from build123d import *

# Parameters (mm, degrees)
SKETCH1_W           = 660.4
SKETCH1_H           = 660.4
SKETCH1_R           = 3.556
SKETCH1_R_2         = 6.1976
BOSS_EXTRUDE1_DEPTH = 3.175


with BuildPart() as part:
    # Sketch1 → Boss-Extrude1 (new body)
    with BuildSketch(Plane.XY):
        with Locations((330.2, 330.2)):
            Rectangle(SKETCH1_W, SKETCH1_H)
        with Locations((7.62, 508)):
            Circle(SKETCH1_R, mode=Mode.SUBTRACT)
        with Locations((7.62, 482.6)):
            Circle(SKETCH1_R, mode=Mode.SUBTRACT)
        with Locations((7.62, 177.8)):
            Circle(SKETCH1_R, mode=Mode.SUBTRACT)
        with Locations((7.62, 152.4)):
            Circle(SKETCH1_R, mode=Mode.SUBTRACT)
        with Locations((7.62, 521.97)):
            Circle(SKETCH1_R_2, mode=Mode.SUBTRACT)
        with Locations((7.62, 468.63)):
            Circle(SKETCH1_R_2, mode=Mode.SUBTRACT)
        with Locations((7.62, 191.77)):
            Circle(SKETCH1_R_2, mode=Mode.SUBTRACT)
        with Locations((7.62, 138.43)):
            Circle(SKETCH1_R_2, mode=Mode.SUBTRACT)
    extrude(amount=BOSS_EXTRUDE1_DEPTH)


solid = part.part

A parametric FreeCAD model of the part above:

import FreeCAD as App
import Part
import Sketcher
from FreeCAD import Vector
Q = App.Units.Quantity


def add_polygon(sketch, points):
    """Adds a closed chain of lines whose ends are joined by coincident constraints."""
    first, n = sketch.GeometryCount, len(points)
    for a, b in zip(points, points[1:] + points[:1]):
        sketch.addGeometry(Part.LineSegment(App.Vector(*a, 0), App.Vector(*b, 0)), False)
    for i in range(n):
        sketch.addConstraint(Sketcher.Constraint("Coincident", first + i, 2, first + (i + 1) % n, 1))

doc = App.newDocument("Part")
body = doc.addObject("PartDesign::Body", "Body")

sketch1 = body.newObject("Sketcher::SketchObject", "Sketch")
sketch1.AttachmentSupport = (doc.getObject("XY_Plane"), [""])
sketch1.MapMode = "FlatFace"
add_polygon(sketch1, [(0, 660.4), (0, 0), (660.4, 0), (660.4, 660.4)])
sketch1.addGeometry(Part.Circle(Vector(7.6, 138.4, 0), Vector(0, 0, 1), 6.2), False)
sketch1.addGeometry(Part.Circle(Vector(7.6, 152.4, 0), Vector(0, 0, 1), 3.6), False)
sketch1.addGeometry(Part.Circle(Vector(7.6, 177.8, 0), Vector(0, 0, 1), 3.6), False)
sketch1.addGeometry(Part.Circle(Vector(7.6, 191.8, 0), Vector(0, 0, 1), 6.2), False)
sketch1.addGeometry(Part.Circle(Vector(7.6, 468.6, 0), Vector(0, 0, 1), 6.2), False)
sketch1.addGeometry(Part.Circle(Vector(7.6, 482.6, 0), Vector(0, 0, 1), 3.6), False)
sketch1.addGeometry(Part.Circle(Vector(7.6, 508, 0), Vector(0, 0, 1), 3.6), False)
sketch1.addGeometry(Part.Circle(Vector(7.6, 522, 0), Vector(0, 0, 1), 6.2), False)
sketch1.addConstraint([
    Sketcher.Constraint("Vertical", 0),
    Sketcher.Constraint("Horizontal", 1),
    Sketcher.Constraint("Vertical", 2),
    Sketcher.Constraint("Horizontal", 3),
    Sketcher.Constraint("Coincident", 0, 2, -1, 1),
    Sketcher.Constraint("Equal", 5, 6),
    Sketcher.Constraint("Equal", 4, 7),
    Sketcher.Constraint("Equal", 7, 8),
    Sketcher.Constraint("Equal", 6, 9),
    Sketcher.Constraint("Equal", 9, 10),
    Sketcher.Constraint("Equal", 8, 11),
    Sketcher.Constraint("Vertical", 4, 3, 5, 3),
    Sketcher.Constraint("Vertical", 5, 3, 6, 3),
    Sketcher.Constraint("Vertical", 6, 3, 7, 3),
    Sketcher.Constraint("Vertical", 7, 3, 8, 3),
    Sketcher.Constraint("Vertical", 8, 3, 9, 3),
    Sketcher.Constraint("Vertical", 9, 3, 10, 3),
    Sketcher.Constraint("Vertical", 10, 3, 11, 3),
    Sketcher.Constraint("Equal", 3, 0),
    Sketcher.Constraint("Diameter", 5, Q("0.28 in")),
    Sketcher.Constraint("DistanceX", 1, 1, 1, 2, Q("26 in")),
    Sketcher.Constraint("Diameter", 4, Q("0.488 in")),
    Sketcher.Constraint("DistanceY", -1, 1, 5, 3, Q("6 in")),
    Sketcher.Constraint("DistanceY", -1, 1, 6, 3, Q("7 in")),
    Sketcher.Constraint("DistanceY", -1, 1, 9, 3, Q("19 in")),
    Sketcher.Constraint("DistanceY", -1, 1, 10, 3, Q("20 in")),
    Sketcher.Constraint("DistanceY", 4, 3, 8, 3, Q("13 in")),
    Sketcher.Constraint("DistanceY", 7, 3, 11, 3, Q("13 in")),
    Sketcher.Constraint("DistanceX", -1, 1, 4, 3, Q("0.3 in")),
    Sketcher.Constraint("DistanceY", 4, 3, 7, 3, Q("2.1 in")),
    Sketcher.Constraint("DistanceY", -1, 1, 4, 3, Q("5.45 in")),
])
pad1 = body.newObject("PartDesign::Pad", "Pad")
pad1.Profile = sketch1
pad1.Length = Q("0.125 in")

doc.recompute()
